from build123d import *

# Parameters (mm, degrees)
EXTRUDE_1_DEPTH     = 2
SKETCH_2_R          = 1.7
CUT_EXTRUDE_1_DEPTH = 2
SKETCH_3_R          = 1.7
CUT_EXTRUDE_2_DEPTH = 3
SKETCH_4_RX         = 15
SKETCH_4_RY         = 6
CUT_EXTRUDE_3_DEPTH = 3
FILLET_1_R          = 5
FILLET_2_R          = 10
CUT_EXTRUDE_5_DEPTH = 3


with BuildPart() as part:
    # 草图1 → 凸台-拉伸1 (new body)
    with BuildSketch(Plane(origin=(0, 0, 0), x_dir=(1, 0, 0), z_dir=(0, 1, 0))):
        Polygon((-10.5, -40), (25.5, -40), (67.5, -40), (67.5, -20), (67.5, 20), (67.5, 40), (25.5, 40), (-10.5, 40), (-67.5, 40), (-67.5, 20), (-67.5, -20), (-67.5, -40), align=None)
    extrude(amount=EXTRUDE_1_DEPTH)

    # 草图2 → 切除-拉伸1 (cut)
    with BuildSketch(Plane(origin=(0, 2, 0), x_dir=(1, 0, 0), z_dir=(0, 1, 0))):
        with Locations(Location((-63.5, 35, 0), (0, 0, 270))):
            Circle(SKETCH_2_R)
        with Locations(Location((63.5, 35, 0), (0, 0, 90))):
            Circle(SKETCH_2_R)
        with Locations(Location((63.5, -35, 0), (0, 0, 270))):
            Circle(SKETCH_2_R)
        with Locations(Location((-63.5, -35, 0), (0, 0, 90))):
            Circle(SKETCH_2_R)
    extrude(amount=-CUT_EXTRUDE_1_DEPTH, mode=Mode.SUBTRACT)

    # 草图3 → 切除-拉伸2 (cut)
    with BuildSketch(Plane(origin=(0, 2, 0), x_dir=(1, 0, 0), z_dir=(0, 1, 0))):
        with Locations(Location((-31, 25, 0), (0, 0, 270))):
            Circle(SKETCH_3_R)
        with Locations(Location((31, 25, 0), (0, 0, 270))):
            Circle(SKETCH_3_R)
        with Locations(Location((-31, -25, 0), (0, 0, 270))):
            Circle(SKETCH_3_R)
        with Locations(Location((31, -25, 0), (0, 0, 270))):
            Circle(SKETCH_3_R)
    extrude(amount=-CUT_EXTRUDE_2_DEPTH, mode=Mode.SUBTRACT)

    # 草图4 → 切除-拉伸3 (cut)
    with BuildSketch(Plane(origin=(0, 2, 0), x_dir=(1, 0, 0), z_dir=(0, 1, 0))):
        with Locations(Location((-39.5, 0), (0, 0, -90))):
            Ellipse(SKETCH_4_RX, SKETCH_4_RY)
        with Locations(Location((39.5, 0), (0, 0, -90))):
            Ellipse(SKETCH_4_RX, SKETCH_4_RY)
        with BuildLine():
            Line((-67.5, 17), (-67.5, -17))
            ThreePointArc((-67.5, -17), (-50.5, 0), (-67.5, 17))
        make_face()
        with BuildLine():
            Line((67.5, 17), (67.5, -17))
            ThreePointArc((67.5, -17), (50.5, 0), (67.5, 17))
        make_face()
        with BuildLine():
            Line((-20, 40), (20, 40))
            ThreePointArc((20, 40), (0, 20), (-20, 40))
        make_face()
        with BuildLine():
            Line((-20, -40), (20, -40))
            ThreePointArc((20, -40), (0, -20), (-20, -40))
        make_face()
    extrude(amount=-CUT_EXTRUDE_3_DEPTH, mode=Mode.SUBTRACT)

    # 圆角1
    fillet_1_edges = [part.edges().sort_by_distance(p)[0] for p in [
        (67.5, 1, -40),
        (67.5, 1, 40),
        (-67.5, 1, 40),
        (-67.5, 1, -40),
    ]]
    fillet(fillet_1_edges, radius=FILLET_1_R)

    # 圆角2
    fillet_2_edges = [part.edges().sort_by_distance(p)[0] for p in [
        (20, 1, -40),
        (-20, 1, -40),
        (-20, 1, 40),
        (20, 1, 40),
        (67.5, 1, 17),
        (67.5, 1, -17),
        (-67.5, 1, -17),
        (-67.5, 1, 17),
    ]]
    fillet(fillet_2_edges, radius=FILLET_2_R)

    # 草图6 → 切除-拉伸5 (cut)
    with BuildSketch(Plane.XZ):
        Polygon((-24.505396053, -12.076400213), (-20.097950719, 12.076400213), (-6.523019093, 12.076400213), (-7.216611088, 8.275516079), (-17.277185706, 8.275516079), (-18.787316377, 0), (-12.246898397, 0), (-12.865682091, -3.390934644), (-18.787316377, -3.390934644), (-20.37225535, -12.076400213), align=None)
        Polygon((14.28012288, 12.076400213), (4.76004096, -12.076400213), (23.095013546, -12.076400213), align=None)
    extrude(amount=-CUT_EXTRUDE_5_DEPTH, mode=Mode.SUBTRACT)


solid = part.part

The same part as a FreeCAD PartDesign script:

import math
import FreeCAD as App
import Part
import Sketcher

V = App.Vector
Q = App.Units.Quantity


def edges_at(feature, points):
    """Names of the edges that pass closest to the given points."""
    edges = feature.Shape.Edges
    near = lambda p: min(range(len(edges)), key=lambda i: edges[i].distToShape(Part.Vertex(*p))[0])
    return sorted({f"Edge{near(p) + 1}" for p in points})


def add_polygon(sketch, points):
    """Adds a closed chain of lines whose ends are joined by coincident constraints."""
    first, n = sketch.GeometryCount, len(points)
    for a, b in zip(points, points[1:] + points[:1]):
        sketch.addGeometry(Part.LineSegment(App.Vector(*a, 0), App.Vector(*b, 0)), False)
    for i in range(n):
        sketch.addConstraint(Sketcher.Constraint("Coincident", first + i, 2, first + (i + 1) % n, 1))

doc = App.newDocument("Part")
body = doc.addObject("PartDesign::Body", "Body")

sketch1 = body.newObject("Sketcher::SketchObject", "Sketch")
sketch1.AttachmentSupport = (doc.getObject("XZ_Plane"), [""])
sketch1.MapMode = "FlatFace"
add_polygon(sketch1, [(67.5, 40), (67.5, -40), (-67.5, -40), (-67.5, 40)])
sketch1.addConstraint([
    Sketcher.Constraint("Vertical", 0),
    Sketcher.Constraint("Horizontal", 1),
    Sketcher.Constraint("Vertical", 2),
    Sketcher.Constraint("Horizontal", 3),
    Sketcher.Constraint("Symmetric", 0, 2, 2, 2, -1, 1),
    Sketcher.Constraint("DistanceX", 1, 2, 1, 1, Q("135 mm")),
    Sketcher.Constraint("DistanceY", 0, 2, 0, 1, Q("80 mm")),
])
pad1 = body.newObject("PartDesign::Pad", "Pad")
pad1.Profile = sketch1
pad1.Length = 2
pad1.Reversed = True

sketch2 = body.newObject("Sketcher::SketchObject", "Sketch001")
sketch2.AttachmentSupport = (doc.getObject("XZ_Plane"), [""])
sketch2.MapMode = "FlatFace"
sketch2.AttachmentOffset = App.Placement(V(0, 0, -2), App.Rotation())
sketch2.addGeometry([
    Part.Circle(V(-63.5, -35, 0), V(0, 0, 1), 1.7),
    Part.Circle(V(63.5, -35, 0), V(0, 0, 1), 1.7),
    Part.Circle(V(63.5, 35, 0), V(0, 0, 1), 1.7),
    Part.Circle(V(-63.5, 35, 0), V(0, 0, 1), 1.7),
], False)
sketch2.addConstraint([
    Sketcher.Constraint("Equal", 0, 1),
    Sketcher.Constraint("Equal", 1, 2),
    Sketcher.Constraint("Equal", 2, 3),
    Sketcher.Constraint("Symmetric", 0, 3, 2, 3, -1, 1),
    Sketcher.Constraint("Symmetric", 1, 3, 3, 3, -1, 1),
    Sketcher.Constraint("Symmetric", 0, 3, 1, 3, -2),
    Sketcher.Constraint("Diameter", 0, Q("3.4 mm")),
    Sketcher.Constraint("DistanceY", 0, 3, -1, 1, Q("35 mm")),
    Sketcher.Constraint("DistanceX", 0, 3, 1, 3, Q("127 mm")),
])
pocket1 = body.newObject("PartDesign::Pocket", "Pocket")
pocket1.Profile = sketch2
pocket1.Length = 2
pocket1.Reversed = True

sketch3 = body.newObject("Sketcher::SketchObject", "Sketch002")
sketch3.AttachmentSupport = (doc.getObject("XZ_Plane"), [""])
sketch3.MapMode = "FlatFace"
sketch3.AttachmentOffset = App.Placement(V(0, 0, -2), App.Rotation())
sketch3.addGeometry([
    Part.Circle(V(-31, -25, 0), V(0, 0, 1), 1.7),
    Part.Circle(V(31, -25, 0), V(0, 0, 1), 1.7),
    Part.Circle(V(-31, 25, 0), V(0, 0, 1), 1.7),
    Part.Circle(V(31, 25, 0), V(0, 0, 1), 1.7),
], False)
sketch3.addConstraint([
    Sketcher.Constraint("Equal", 0, 1),
    Sketcher.Constraint("Equal", 1, 2),
    Sketcher.Constraint("Equal", 2, 3),
    Sketcher.Constraint("Symmetric", 1, 3, 2, 3, -1, 1),
    Sketcher.Constraint("Symmetric", 0, 3, 3, 3, -1, 1),
    Sketcher.Constraint("Symmetric", 0, 3, 1, 3, -2),
    Sketcher.Constraint("Diameter", 0, Q("3.4 mm")),
    Sketcher.Constraint("DistanceX", 0, 3, -1, 1, Q("31 mm")),
    Sketcher.Constraint("DistanceY", 0, 3, -1, 1, Q("25 mm")),
])
pocket2 = body.newObject("PartDesign::Pocket", "Pocket001")
pocket2.Profile = sketch3
pocket2.Length = 3
pocket2.Reversed = True

sketch4 = body.newObject("Sketcher::SketchObject", "Sketch003")
sketch4.AttachmentSupport = (doc.getObject("XZ_Plane"), [""])
sketch4.MapMode = "FlatFace"
sketch4.AttachmentOffset = App.Placement(V(0, 0, -2), App.Rotation())
sketch4.addGeometry([
    Part.Ellipse(V(-39.5, 15, 0), V(-45.5, 0, 0), V(-39.5, 0, 0)),
    Part.Ellipse(V(39.5, 15, 0), V(33.5, 0, 0), V(39.5, 0, 0)),
    Part.LineSegment(V(-67.5, -17, 0), V(-67.5, 17, 0)),
    Part.ArcOfCircle(Part.Circle(V(-67.5, 0, 0), V(0, 0, 1), 17), math.radians(-90), math.radians(90)),
    Part.LineSegment(V(67.5, 17, 0), V(67.5, -17, 0)),
    Part.ArcOfCircle(Part.Circle(V(67.5, 0, 0), V(0, 0, 1), 17), math.radians(90), math.radians(270)),
    Part.LineSegment(V(20, -40, 0), V(-20, -40, 0)),
    Part.ArcOfCircle(Part.Circle(V(0, -40, 0), V(0, 0, 1), 20), math.radians(0), math.radians(180)),
    Part.LineSegment(V(-20, 40, 0), V(20, 40, 0)),
    Part.ArcOfCircle(Part.Circle(V(0, 40, 0), V(0, 0, 1), 20), math.radians(180), math.radians(360)),
], False)
sketch4.addConstraint([
    Sketcher.Constraint("Block", 0),
    Sketcher.Constraint("Block", 1),
    Sketcher.Constraint("Coincident", 2, 1, 3, 1),
    Sketcher.Constraint("Coincident", 3, 2, 2, 2),
    Sketcher.Constraint("Coincident", 4, 1, 5, 1),
    Sketcher.Constraint("Coincident", 5, 2, 4, 2),
    Sketcher.Constraint("Coincident", 6, 1, 7, 1),
    Sketcher.Constraint("Coincident", 7, 2, 6, 2),
    Sketcher.Constraint("Coincident", 8, 1, 9, 1),
    Sketcher.Constraint("Coincident", 9, 2, 8, 2),
    Sketcher.Constraint("Vertical", 2),
    Sketcher.Constraint("Vertical", 4),
    Sketcher.Constraint("Horizontal", 6),
    Sketcher.Constraint("Horizontal", 8),
    Sketcher.Constraint("Equal", 3, 5),
    Sketcher.Constraint("Equal", 7, 9),
    Sketcher.Constraint("Symmetric", 3, 3, 5, 3, -1, 1),
    Sketcher.Constraint("Symmetric", 7, 3, 9, 3, -1, 1),
    Sketcher.Constraint("Symmetric", 3, 2, 4, 1, -2),
    Sketcher.Constraint("Symmetric", 7, 2, 8, 1, -1),
    Sketcher.Constraint("Horizontal", 7, 3, 6, 1),
    Sketcher.Constraint("Vertical", 3, 3, 2, 1),
    Sketcher.Constraint("Radius", 3, Q("17 mm")),
    Sketcher.Constraint("Radius", 7, Q("20 mm")),
    Sketcher.Constraint("DistanceY", 7, 3, -1, 1, Q("40 mm")),
    Sketcher.Constraint("DistanceX", 3, 3, 5, 3, Q("135 mm")),
])
pocket3 = body.newObject("PartDesign::Pocket", "Pocket002")
pocket3.Profile = sketch4
pocket3.Length = 3
pocket3.Reversed = True
doc.recompute()

fillet = body.newObject("PartDesign::Fillet", "Fillet")
fillet.Base = (pocket3, edges_at(pocket3, [
    (67.5, 1, -40),
    (67.5, 1, 40),
    (-67.5, 1, 40),
    (-67.5, 1, -40),
]))
fillet.Radius = 5
doc.recompute()

fillet2 = body.newObject("PartDesign::Fillet", "Fillet001")
fillet2.Base = (fillet, edges_at(fillet, [
    (20, 1, -40),
    (-20, 1, -40),
    (-20, 1, 40),
    (20, 1, 40),
    (67.5, 1, 17),
    (67.5, 1, -17),
    (-67.5, 1, -17),
    (-67.5, 1, 17),
]))
fillet2.Radius = 10

sketch5 = body.newObject("Sketcher::SketchObject", "Sketch004")
sketch5.AttachmentSupport = (doc.getObject("XZ_Plane"), [""])
sketch5.MapMode = "FlatFace"
add_polygon(sketch5, [(-20.097951, 12.0764), (-24.505396, -12.0764), (-20.372255, -12.0764), (-18.787316, -3.390935), (-12.865682, -3.390935), (-12.246898, 0), (-18.787316, 0), (-17.277186, 8.275516), (-7.216611, 8.275516), (-6.523019, 12.0764)])
add_polygon(sketch5, [(14.280123, 12.0764), (4.760041, -12.0764), (23.095014, -12.0764)])
sketch5.addConstraint([
    Sketcher.Constraint("Horizontal", 1),
    Sketcher.Constraint("Horizontal", 3),
    Sketcher.Constraint("Horizontal", 5),
    Sketcher.Constraint("Horizontal", 7),
    Sketcher.Constraint("Horizontal", 9),
    Sketcher.Constraint("Horizontal", 11),
    Sketcher.Constraint("PointOnObject", 4, 2, -1),
    Sketcher.Constraint("Parallel", 0, 2),
    Sketcher.Constraint("Parallel", 2, 4),
    Sketcher.Constraint("Parallel", 4, 6),
    Sketcher.Constraint("Parallel", 6, 8),
    Sketcher.Constraint("Horizontal", 1, 2, 10, 2),
    Sketcher.Constraint("Horizontal", 9, 2, 12, 2),
    Sketcher.Constraint("Vertical", 2, 2, 5, 2),
    Sketcher.Constraint("DistanceX", 1, 1, 1, 2, Q("4.133141 mm")),
    Sketcher.Constraint("DistanceX", 9, 2, 9, 1, Q("13.574932 mm")),
    Sketcher.Constraint("DistanceY", 0, 2, -1, 1, Q("12.0764 mm")),
    Sketcher.Constraint("DistanceX", 4, 2, -1, 1, Q("12.246898 mm")),
    Sketcher.Constraint("DistanceY", -1, 1, 8, 2, Q("12.0764 mm")),
    Sketcher.Constraint("Distance", 4, Q("3.446931 mm")),
    Sketcher.Constraint("Distance", 8, Q("3.86365 mm")),
    Sketcher.Constraint("Distance", 12, Q("25.711088 mm")),
    Sketcher.Constraint("DistanceX", 3, 1, 3, 2, Q("5.921634 mm")),
    Sketcher.Constraint("DistanceX", 5, 2, 5, 1, Q("6.540418 mm")),
    Sketcher.Constraint("DistanceX", 11, 1, 11, 2, Q("18.334973 mm")),
    Sketcher.Constraint("DistanceX", -1, 1, 10, 2, Q("4.760041 mm")),
])
pocket4 = body.newObject("PartDesign::Pocket", "Pocket003")
pocket4.Profile = sketch5
pocket4.Length = 3

doc.recompute()
